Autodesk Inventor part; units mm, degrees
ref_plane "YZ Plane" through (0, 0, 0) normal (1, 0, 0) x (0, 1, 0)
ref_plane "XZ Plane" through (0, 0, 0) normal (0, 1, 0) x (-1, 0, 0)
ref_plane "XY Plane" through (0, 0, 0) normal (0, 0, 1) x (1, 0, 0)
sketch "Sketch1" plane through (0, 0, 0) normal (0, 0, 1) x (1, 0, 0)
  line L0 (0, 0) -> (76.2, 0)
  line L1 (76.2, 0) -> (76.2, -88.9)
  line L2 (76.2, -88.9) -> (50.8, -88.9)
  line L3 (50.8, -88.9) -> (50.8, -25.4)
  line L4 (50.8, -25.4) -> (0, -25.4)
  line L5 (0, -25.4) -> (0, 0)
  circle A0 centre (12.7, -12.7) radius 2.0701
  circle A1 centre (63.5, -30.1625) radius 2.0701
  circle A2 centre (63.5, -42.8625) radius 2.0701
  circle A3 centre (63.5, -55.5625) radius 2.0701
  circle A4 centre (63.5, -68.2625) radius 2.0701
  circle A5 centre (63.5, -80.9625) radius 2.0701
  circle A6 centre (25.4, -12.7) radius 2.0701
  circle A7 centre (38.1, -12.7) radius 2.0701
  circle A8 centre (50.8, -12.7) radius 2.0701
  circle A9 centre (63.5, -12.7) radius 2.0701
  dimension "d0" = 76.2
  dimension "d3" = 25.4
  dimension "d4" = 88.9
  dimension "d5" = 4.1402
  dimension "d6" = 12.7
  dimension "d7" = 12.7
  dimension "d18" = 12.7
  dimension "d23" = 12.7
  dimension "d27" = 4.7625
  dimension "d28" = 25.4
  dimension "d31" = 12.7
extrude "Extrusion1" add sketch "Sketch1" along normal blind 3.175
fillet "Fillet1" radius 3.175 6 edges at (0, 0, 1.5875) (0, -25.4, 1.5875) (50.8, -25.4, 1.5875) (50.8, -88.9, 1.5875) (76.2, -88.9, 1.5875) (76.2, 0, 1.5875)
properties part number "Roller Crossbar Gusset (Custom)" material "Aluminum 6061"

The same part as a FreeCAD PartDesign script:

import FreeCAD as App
import Part
import Sketcher
Q = App.Units.Quantity


def edges_at(feature, points):
    """Names of the edges that pass closest to the given points."""
    edges = feature.Shape.Edges
    near = lambda p: min(range(len(edges)), key=lambda i: edges[i].distToShape(Part.Vertex(*p))[0])
    return sorted({f"Edge{near(p) + 1}" for p in points})

doc = App.newDocument("Part")
body = doc.addObject("PartDesign::Body", "Body")

sketch1 = doc.addObject("Sketcher::SketchObject", "Sketch")
body.addObject(sketch1)
sketch1.AttachmentSupport = (doc.XY_Plane, [""])
sketch1.MapMode = "FlatFace"
sketch1.addGeometry(Part.LineSegment(App.Vector(76.2, 0, 0), App.Vector(0, 0, 0)), False)
sketch1.addGeometry(Part.LineSegment(App.Vector(0, 0, 0), App.Vector(0, -25.4, 0)), False)
sketch1.addGeometry(Part.LineSegment(App.Vector(0, -25.4, 0), App.Vector(50.8, -25.4, 0)), False)
sketch1.addGeometry(Part.LineSegment(App.Vector(50.8, -25.4, 0), App.Vector(50.8, -88.9, 0)), False)
sketch1.addGeometry(Part.LineSegment(App.Vector(50.8, -88.9, 0), App.Vector(76.2, -88.9, 0)), False)
sketch1.addGeometry(Part.LineSegment(App.Vector(76.2, -88.9, 0), App.Vector(76.2, 0, 0)), False)
sketch1.addGeometry(Part.Circle(App.Vector(63.5, -80.9625, 0), App.Vector(0, 0, 1), 2.0701), False)
sketch1.addGeometry(Part.Circle(App.Vector(63.5, -68.2625, 0), App.Vector(0, 0, 1), 2.0701), False)
sketch1.addGeometry(Part.Circle(App.Vector(63.5, -55.5625, 0), App.Vector(0, 0, 1), 2.0701), False)
sketch1.addGeometry(Part.Circle(App.Vector(12.7, -12.7, 0), App.Vector(0, 0, 1), 2.0701), False)
sketch1.addGeometry(Part.Circle(App.Vector(25.4, -12.7, 0), App.Vector(0, 0, 1), 2.0701), False)
sketch1.addGeometry(Part.Circle(App.Vector(63.5, -42.8625, 0), App.Vector(0, 0, 1), 2.0701), False)
sketch1.addGeometry(Part.Circle(App.Vector(63.5, -30.1625, 0), App.Vector(0, 0, 1), 2.0701), False)
sketch1.addGeometry(Part.Circle(App.Vector(38.1, -12.7, 0), App.Vector(0, 0, 1), 2.0701), False)
sketch1.addGeometry(Part.Circle(App.Vector(50.8, -12.7, 0), App.Vector(0, 0, 1), 2.0701), False)
sketch1.addGeometry(Part.Circle(App.Vector(63.5, -12.7, 0), App.Vector(0, 0, 1), 2.0701), False)
sketch1.addConstraint(Sketcher.Constraint("Coincident", 0, 2, 1, 1))
sketch1.addConstraint(Sketcher.Constraint("Coincident", 1, 2, 2, 1))
sketch1.addConstraint(Sketcher.Constraint("Coincident", 2, 2, 3, 1))
sketch1.addConstraint(Sketcher.Constraint("Coincident", 3, 2, 4, 1))
sketch1.addConstraint(Sketcher.Constraint("Coincident", 4, 2, 5, 1))
sketch1.addConstraint(Sketcher.Constraint("Coincident", 5, 2, 0, 1))
sketch1.addConstraint(Sketcher.Constraint("Horizontal", 0))
sketch1.addConstraint(Sketcher.Constraint("Vertical", 1))
sketch1.addConstraint(Sketcher.Constraint("Horizontal", 2))
sketch1.addConstraint(Sketcher.Constraint("Vertical", 3))
sketch1.addConstraint(Sketcher.Constraint("Horizontal", 4))
sketch1.addConstraint(Sketcher.Constraint("Vertical", 5))
sketch1.addConstraint(Sketcher.Constraint("Coincident", 0, 2, -1, 1))
sketch1.addConstraint(Sketcher.Constraint("Equal", 6, 7))
sketch1.addConstraint(Sketcher.Constraint("Equal", 7, 8))
sketch1.addConstraint(Sketcher.Constraint("Equal", 8, 9))
sketch1.addConstraint(Sketcher.Constraint("Equal", 9, 10))
sketch1.addConstraint(Sketcher.Constraint("Equal", 10, 11))
sketch1.addConstraint(Sketcher.Constraint("Equal", 11, 12))
sketch1.addConstraint(Sketcher.Constraint("Equal", 12, 13))
sketch1.addConstraint(Sketcher.Constraint("Equal", 13, 14))
sketch1.addConstraint(Sketcher.Constraint("Equal", 14, 15))
sketch1.addConstraint(Sketcher.Constraint("Horizontal", 9, 3, 10, 3))
sketch1.addConstraint(Sketcher.Constraint("Horizontal", 10, 3, 13, 3))
sketch1.addConstraint(Sketcher.Constraint("Horizontal", 13, 3, 14, 3))
sketch1.addConstraint(Sketcher.Constraint("Horizontal", 14, 3, 15, 3))
sketch1.addConstraint(Sketcher.Constraint("Vertical", 6, 3, 7, 3))
sketch1.addConstraint(Sketcher.Constraint("Vertical", 7, 3, 8, 3))
sketch1.addConstraint(Sketcher.Constraint("Vertical", 8, 3, 11, 3))
sketch1.addConstraint(Sketcher.Constraint("Vertical", 11, 3, 12, 3))
sketch1.addConstraint(Sketcher.Constraint("Vertical", 12, 3, 15, 3))
sketch1.addConstraint(Sketcher.Constraint("Vertical", 14, 3, 2, 2))
sketch1.addConstraint(Sketcher.Constraint("Equal", 4, 1))
sketch1.addConstraint(Sketcher.Constraint("DistanceX", 0, 2, 0, 1, Q("3 in")))
sketch1.addConstraint(Sketcher.Constraint("DistanceX", 4, 1, 4, 2, Q("1 in")))
sketch1.addConstraint(Sketcher.Constraint("Diameter", 6, Q("0.163 in")))
sketch1.addConstraint(Sketcher.Constraint("DistanceY", 5, 1, 5, 2, Q("3.5 in")))
sketch1.addConstraint(Sketcher.Constraint("DistanceX", -1, 1, 10, 3, Q("1 in")))
sketch1.addConstraint(Sketcher.Constraint("DistanceY", 6, 3, 8, 3, Q("1 in")))
sketch1.addConstraint(Sketcher.Constraint("DistanceY", 7, 3, 11, 3, Q("1 in")))
sketch1.addConstraint(Sketcher.Constraint("DistanceY", 8, 3, 12, 3, Q("1 in")))
sketch1.addConstraint(Sketcher.Constraint("DistanceX", 9, 3, 13, 3, Q("1 in")))
sketch1.addConstraint(Sketcher.Constraint("DistanceX", 13, 3, 12, 3, Q("1 in")))
sketch1.addConstraint(Sketcher.Constraint("DistanceX", -1, 1, 9, 3, Q("0.5 in")))
sketch1.addConstraint(Sketcher.Constraint("DistanceY", 9, 3, -1, 1, Q("0.5 in")))
sketch1.addConstraint(Sketcher.Constraint("DistanceY", 6, 3, 7, 3, Q("0.5 in")))
sketch1.addConstraint(Sketcher.Constraint("DistanceY", 12, 3, 2, 2, Q("0.1875 in")))
pad1 = doc.addObject("PartDesign::Pad", "Pad")
body.addObject(pad1)
pad1.Profile = sketch1
pad1.Length = Q("0.125 in")
doc.recompute()

fillet = doc.addObject("PartDesign::Fillet", "Fillet")
body.addObject(fillet)
fillet.Base = (pad1, edges_at(pad1, [
    (0, 0, 1.587),
    (0, -25.4, 1.587),
    (50.8, -25.4, 1.587),
    (50.8, -88.9, 1.587),
    (76.2, -88.9, 1.587),
    (76.2, 0, 1.587),
]))
fillet.Radius = Q("0.125 in")

doc.recompute()
